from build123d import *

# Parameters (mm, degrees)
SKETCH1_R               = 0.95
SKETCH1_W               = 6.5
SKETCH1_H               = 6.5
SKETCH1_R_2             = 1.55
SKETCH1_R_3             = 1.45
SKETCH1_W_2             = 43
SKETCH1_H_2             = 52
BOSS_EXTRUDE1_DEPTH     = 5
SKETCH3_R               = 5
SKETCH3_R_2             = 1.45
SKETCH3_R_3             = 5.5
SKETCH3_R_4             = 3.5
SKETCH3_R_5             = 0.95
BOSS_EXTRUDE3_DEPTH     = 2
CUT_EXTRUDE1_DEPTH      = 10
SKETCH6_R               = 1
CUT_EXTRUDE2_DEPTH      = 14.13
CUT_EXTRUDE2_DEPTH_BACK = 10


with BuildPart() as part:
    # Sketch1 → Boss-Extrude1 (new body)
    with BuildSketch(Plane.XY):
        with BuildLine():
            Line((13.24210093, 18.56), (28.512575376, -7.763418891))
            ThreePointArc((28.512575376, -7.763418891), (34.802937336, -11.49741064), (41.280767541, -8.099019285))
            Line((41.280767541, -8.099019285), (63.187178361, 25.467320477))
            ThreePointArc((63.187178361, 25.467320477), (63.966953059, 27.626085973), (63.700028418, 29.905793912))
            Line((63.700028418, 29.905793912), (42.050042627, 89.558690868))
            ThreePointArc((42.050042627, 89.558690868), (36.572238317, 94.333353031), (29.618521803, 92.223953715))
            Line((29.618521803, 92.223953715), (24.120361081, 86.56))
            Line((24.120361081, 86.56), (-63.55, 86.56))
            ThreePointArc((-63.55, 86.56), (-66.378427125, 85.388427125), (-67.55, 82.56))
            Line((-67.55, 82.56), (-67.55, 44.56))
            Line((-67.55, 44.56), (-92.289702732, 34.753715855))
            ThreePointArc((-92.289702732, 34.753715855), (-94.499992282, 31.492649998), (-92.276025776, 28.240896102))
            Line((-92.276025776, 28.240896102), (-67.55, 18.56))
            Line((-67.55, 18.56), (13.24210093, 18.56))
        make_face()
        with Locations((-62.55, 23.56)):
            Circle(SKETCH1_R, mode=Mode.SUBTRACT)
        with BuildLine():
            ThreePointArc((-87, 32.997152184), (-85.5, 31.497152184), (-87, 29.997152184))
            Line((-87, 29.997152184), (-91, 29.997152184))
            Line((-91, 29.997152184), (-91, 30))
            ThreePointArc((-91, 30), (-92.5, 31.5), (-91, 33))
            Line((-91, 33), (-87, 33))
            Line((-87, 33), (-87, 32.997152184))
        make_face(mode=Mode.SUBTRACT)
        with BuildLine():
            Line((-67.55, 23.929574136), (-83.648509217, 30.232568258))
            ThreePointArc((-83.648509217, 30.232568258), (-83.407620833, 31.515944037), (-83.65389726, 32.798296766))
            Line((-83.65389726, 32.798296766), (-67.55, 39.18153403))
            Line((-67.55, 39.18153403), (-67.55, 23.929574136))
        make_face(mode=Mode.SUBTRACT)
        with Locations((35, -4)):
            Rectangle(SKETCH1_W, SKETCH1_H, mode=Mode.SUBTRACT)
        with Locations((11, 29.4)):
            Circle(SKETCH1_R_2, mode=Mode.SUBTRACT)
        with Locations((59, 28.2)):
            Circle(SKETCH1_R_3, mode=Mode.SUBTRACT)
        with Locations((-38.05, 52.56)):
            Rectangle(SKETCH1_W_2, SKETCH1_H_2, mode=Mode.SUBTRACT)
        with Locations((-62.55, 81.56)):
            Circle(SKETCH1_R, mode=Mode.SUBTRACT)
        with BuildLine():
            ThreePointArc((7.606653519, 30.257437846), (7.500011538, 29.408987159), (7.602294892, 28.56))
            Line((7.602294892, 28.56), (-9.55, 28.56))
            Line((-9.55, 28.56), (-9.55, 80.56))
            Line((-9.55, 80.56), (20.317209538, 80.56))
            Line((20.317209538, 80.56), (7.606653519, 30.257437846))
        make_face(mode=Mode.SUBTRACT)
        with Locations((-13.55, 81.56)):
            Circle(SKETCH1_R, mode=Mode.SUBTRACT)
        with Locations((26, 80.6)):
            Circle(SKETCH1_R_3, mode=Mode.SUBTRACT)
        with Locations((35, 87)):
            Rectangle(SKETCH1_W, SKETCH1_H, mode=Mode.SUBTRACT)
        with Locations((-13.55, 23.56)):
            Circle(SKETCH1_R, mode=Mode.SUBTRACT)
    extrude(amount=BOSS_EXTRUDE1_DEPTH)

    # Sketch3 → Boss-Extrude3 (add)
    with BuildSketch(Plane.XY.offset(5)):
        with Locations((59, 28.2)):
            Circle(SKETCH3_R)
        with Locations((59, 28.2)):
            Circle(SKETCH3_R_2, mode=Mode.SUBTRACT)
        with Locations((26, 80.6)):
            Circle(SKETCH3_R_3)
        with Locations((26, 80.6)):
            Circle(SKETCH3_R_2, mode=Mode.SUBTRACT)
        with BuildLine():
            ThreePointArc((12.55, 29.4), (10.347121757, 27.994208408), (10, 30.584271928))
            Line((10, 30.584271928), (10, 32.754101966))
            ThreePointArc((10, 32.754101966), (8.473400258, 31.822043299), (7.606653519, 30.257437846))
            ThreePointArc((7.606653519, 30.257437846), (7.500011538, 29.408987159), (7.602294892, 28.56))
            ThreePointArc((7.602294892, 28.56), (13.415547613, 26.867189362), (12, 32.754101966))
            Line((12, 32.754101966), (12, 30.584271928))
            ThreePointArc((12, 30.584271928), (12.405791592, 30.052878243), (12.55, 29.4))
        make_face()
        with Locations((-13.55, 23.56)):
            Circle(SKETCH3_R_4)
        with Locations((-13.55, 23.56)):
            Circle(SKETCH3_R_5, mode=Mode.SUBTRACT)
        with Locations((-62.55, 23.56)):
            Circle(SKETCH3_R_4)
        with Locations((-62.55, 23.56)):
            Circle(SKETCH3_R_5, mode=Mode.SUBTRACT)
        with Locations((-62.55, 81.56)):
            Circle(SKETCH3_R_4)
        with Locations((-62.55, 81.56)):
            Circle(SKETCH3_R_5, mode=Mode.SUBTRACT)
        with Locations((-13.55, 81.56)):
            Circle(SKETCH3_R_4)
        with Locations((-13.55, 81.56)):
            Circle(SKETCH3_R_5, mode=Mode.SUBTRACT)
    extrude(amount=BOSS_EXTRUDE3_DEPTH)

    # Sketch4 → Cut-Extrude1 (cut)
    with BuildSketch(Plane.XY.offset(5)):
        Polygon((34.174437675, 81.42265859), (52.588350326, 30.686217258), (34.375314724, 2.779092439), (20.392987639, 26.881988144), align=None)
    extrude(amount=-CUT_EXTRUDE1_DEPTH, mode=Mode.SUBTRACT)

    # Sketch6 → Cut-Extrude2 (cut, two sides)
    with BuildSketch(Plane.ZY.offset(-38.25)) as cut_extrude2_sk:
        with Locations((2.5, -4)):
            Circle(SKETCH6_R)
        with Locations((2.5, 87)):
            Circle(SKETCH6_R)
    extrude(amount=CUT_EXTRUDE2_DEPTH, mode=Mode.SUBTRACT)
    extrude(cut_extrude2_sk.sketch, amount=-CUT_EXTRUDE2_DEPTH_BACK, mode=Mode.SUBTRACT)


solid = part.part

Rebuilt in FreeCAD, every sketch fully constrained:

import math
import FreeCAD as App
import Part
import Sketcher
from FreeCAD import Vector
Q = App.Units.Quantity


def add_polygon(sketch, points):
    """Adds a closed chain of lines whose ends are joined by coincident constraints."""
    first, n = sketch.GeometryCount, len(points)
    for a, b in zip(points, points[1:] + points[:1]):
        sketch.addGeometry(Part.LineSegment(App.Vector(*a, 0), App.Vector(*b, 0)), False)
    for i in range(n):
        sketch.addConstraint(Sketcher.Constraint("Coincident", first + i, 2, first + (i + 1) % n, 1))

doc = App.newDocument("Part")
body = doc.addObject("PartDesign::Body", "Body")

sketch1 = doc.addObject("Sketcher::SketchObject", "Sketch")
body.addObject(sketch1)
sketch1.AttachmentSupport = (doc.XY_Plane, [""])
sketch1.MapMode = "FlatFace"
sketch1.addGeometry(Part.LineSegment(Vector(13.242101, 18.56, 0), Vector(28.512575, -7.763419, 0)), False)
sketch1.addGeometry(Part.ArcOfCircle(Part.Circle(Vector(35, -4, 0), Vector(0, 0, 1), 7.5), math.radians(-149.881558), math.radians(-33.129685)), False)
sketch1.addGeometry(Part.LineSegment(Vector(41.280768, -8.099019, 0), Vector(63.187178, 25.46732, 0)), False)
sketch1.addGeometry(Part.ArcOfCircle(Part.Circle(Vector(59, 28.2, 0), Vector(0, 0, 1), 5), math.radians(-33.129685), math.radians(19.947489)), False)
sketch1.addGeometry(Part.LineSegment(Vector(63.700028, 29.905794, 0), Vector(42.050043, 89.558691, 0)), False)
sketch1.addGeometry(Part.ArcOfCircle(Part.Circle(Vector(35, 87, 0), Vector(0, 0, 1), 7.5), math.radians(19.947489), math.radians(135.850962)), False)
sketch1.addGeometry(Part.LineSegment(Vector(29.618522, 92.223954, 0), Vector(24.120361, 86.56, 0)), False)
sketch1.addGeometry(Part.LineSegment(Vector(24.120361, 86.56, 0), Vector(-63.55, 86.56, 0)), False)
sketch1.addGeometry(Part.ArcOfCircle(Part.Circle(Vector(-63.55, 82.56, 0), Vector(0, 0, 1), 4), math.radians(90), math.radians(180)), False)
sketch1.addGeometry(Part.LineSegment(Vector(-67.55, 82.56, 0), Vector(-67.55, 44.56, 0)), False)
sketch1.addGeometry(Part.LineSegment(Vector(-67.55, 44.56, 0), Vector(-92.289703, 34.753716, 0)), False)
sketch1.addGeometry(Part.ArcOfCircle(Part.Circle(Vector(-91, 31.5, 0), Vector(0, 0, 1), 3.5), math.radians(111.622306), math.radians(248.618337)), False)
sketch1.addGeometry(Part.LineSegment(Vector(-92.276026, 28.240896, 0), Vector(-67.55, 18.56, 0)), False)
sketch1.addGeometry(Part.LineSegment(Vector(-67.55, 18.56, 0), Vector(13.242101, 18.56, 0)), False)
sketch1.addGeometry(Part.Circle(Vector(-62.55, 23.56, 0), Vector(0, 0, 1), 0.95), False)
sketch1.addGeometry(Part.LineSegment(Vector(-87, 33, 0), Vector(-87, 32.997152, 0)), False)
sketch1.addGeometry(Part.ArcOfCircle(Part.Circle(Vector(-87, 31.497152, 0), Vector(0, 0, 1), 1.5), math.radians(-90), math.radians(90)), False)
sketch1.addGeometry(Part.LineSegment(Vector(-87, 29.997152, 0), Vector(-91, 29.997152, 0)), False)
sketch1.addGeometry(Part.LineSegment(Vector(-91, 29.997152, 0), Vector(-91, 30, 0)), False)
sketch1.addGeometry(Part.ArcOfCircle(Part.Circle(Vector(-91, 31.5, 0), Vector(0, 0, 1), 1.5), math.radians(90), math.radians(270)), False)
sketch1.addGeometry(Part.LineSegment(Vector(-91, 33, 0), Vector(-87, 33, 0)), False)
sketch1.addGeometry(Part.LineSegment(Vector(-67.55, 39.181534, 0), Vector(-67.55, 23.929574, 0)), False)
sketch1.addGeometry(Part.LineSegment(Vector(-67.55, 23.929574, 0), Vector(-83.648509, 30.232568, 0)), False)
sketch1.addGeometry(Part.ArcOfCircle(Part.Circle(Vector(-86.907613, 31.508594, 0), Vector(0, 0, 1), 3.5), math.radians(-21.381663), math.radians(21.622306)), False)
sketch1.addGeometry(Part.LineSegment(Vector(-83.653897, 32.798297, 0), Vector(-67.55, 39.181534, 0)), False)
add_polygon(sketch1, [(38.25, -7.25), (31.75, -7.25), (31.75, -0.75), (38.25, -0.75)])
sketch1.addGeometry(Part.Circle(Vector(-13.55, 23.56, 0), Vector(0, 0, 1), 0.95), False)
sketch1.addGeometry(Part.Circle(Vector(11, 29.4, 0), Vector(0, 0, 1), 1.55), False)
sketch1.addGeometry(Part.Circle(Vector(59, 28.2, 0), Vector(0, 0, 1), 1.45), False)
add_polygon(sketch1, [(-16.55, 26.56), (-59.55, 26.56), (-59.55, 78.56), (-16.55, 78.56)])
sketch1.addGeometry(Part.Circle(Vector(-62.55, 81.56, 0), Vector(0, 0, 1), 0.95), False)
sketch1.addGeometry(Part.LineSegment(Vector(20.31721, 80.56, 0), Vector(7.606654, 30.257438, 0)), False)
sketch1.addGeometry(Part.ArcOfCircle(Part.Circle(Vector(11, 29.4, 0), Vector(0, 0, 1), 3.5), math.radians(165.819216), math.radians(193.88654)), False)
sketch1.addGeometry(Part.LineSegment(Vector(7.602295, 28.56, 0), Vector(-9.55, 28.56, 0)), False)
sketch1.addGeometry(Part.LineSegment(Vector(-9.55, 28.56, 0), Vector(-9.55, 80.56, 0)), False)
sketch1.addGeometry(Part.LineSegment(Vector(-9.55, 80.56, 0), Vector(20.31721, 80.56, 0)), False)
sketch1.addGeometry(Part.Circle(Vector(-13.55, 81.56, 0), Vector(0, 0, 1), 0.95), False)
sketch1.addGeometry(Part.Circle(Vector(26, 80.6, 0), Vector(0, 0, 1), 1.45), False)
add_polygon(sketch1, [(38.25, 83.75), (31.75, 83.75), (31.75, 90.25), (38.25, 90.25)])
sketch1.addConstraint([
    Sketcher.Constraint("Tangent", 0, 2, 1, 1),
    Sketcher.Constraint("Tangent", 1, 2, 2, 1),
    Sketcher.Constraint("Tangent", 2, 2, 3, 1),
    Sketcher.Constraint("Tangent", 3, 2, 4, 1),
    Sketcher.Constraint("Tangent", 4, 2, 5, 1),
    Sketcher.Constraint("Tangent", 5, 2, 6, 1),
    Sketcher.Constraint("Coincident", 6, 2, 7, 1),
    Sketcher.Constraint("Tangent", 7, 2, 8, 1),
    Sketcher.Constraint("Tangent", 8, 2, 9, 1),
    Sketcher.Constraint("Coincident", 9, 2, 10, 1),
    Sketcher.Constraint("Tangent", 10, 2, 11, 1),
    Sketcher.Constraint("Tangent", 11, 2, 12, 1),
    Sketcher.Constraint("Coincident", 12, 2, 13, 1),
    Sketcher.Constraint("Coincident", 13, 2, 0, 1),
    Sketcher.Constraint("Coincident", 15, 2, 16, 2),
    Sketcher.Constraint("Tangent", 16, 1, 17, 1),
    Sketcher.Constraint("Coincident", 17, 2, 18, 1),
    Sketcher.Constraint("Coincident", 18, 2, 19, 2),
    Sketcher.Constraint("Tangent", 19, 1, 20, 1),
    Sketcher.Constraint("Coincident", 20, 2, 15, 1),
    Sketcher.Constraint("Coincident", 21, 2, 22, 1),
    Sketcher.Constraint("Coincident", 22, 2, 23, 1),
    Sketcher.Constraint("Coincident", 23, 2, 24, 1),
    Sketcher.Constraint("Coincident", 24, 2, 21, 1),
    Sketcher.Constraint("Tangent", 37, 2, 38, 1),
    Sketcher.Constraint("Coincident", 38, 2, 39, 1),
    Sketcher.Constraint("Coincident", 39, 2, 40, 1),
    Sketcher.Constraint("Coincident", 40, 2, 41, 1),
    Sketcher.Constraint("Coincident", 41, 2, 37, 1),
    Sketcher.Constraint("Horizontal", 7),
    Sketcher.Constraint("Vertical", 9),
    Sketcher.Constraint("Horizontal", 13),
    Sketcher.Constraint("Vertical", 15),
    Sketcher.Constraint("Horizontal", 17),
    Sketcher.Constraint("Vertical", 18),
    Sketcher.Constraint("Horizontal", 20),
    Sketcher.Constraint("Vertical", 21),
    Sketcher.Constraint("Horizontal", 25),
    Sketcher.Constraint("Vertical", 26),
    Sketcher.Constraint("Horizontal", 27),
    Sketcher.Constraint("Vertical", 28),
    Sketcher.Constraint("Horizontal", 32),
    Sketcher.Constraint("Vertical", 33),
    Sketcher.Constraint("Horizontal", 34),
    Sketcher.Constraint("Vertical", 35),
    Sketcher.Constraint("Horizontal", 39),
    Sketcher.Constraint("Vertical", 40),
    Sketcher.Constraint("Horizontal", 41),
    Sketcher.Constraint("Horizontal", 44),
    Sketcher.Constraint("Vertical", 45),
    Sketcher.Constraint("Horizontal", 46),
    Sketcher.Constraint("Vertical", 47),
    Sketcher.Constraint("Coincident", 19, 3, 11, 3),
    Sketcher.Constraint("Coincident", 31, 3, 3, 3),
    Sketcher.Constraint("Coincident", 38, 3, 30, 3),
    Sketcher.Constraint("Equal", 1, 5),
    Sketcher.Constraint("Equal", 16, 19),
    Sketcher.Constraint("Equal", 11, 23),
    Sketcher.Constraint("Equal", 14, 29),
    Sketcher.Constraint("Equal", 29, 36),
    Sketcher.Constraint("Equal", 23, 38),
    Sketcher.Constraint("Equal", 36, 42),
    Sketcher.Constraint("Equal", 31, 43),
    Sketcher.Constraint("Parallel", 12, 22),
    Sketcher.Constraint("Parallel", 10, 24),
    Sketcher.Constraint("Horizontal", 14, 3, 29, 3),
    Sketcher.Constraint("Horizontal", 36, 3, 42, 3),
    Sketcher.Constraint("Vertical", 1, 3, 5, 3),
    Sketcher.Constraint("Vertical", 14, 3, 36, 3),
    Sketcher.Constraint("Vertical", 29, 3, 42, 3),
    Sketcher.Constraint("Vertical", 9, 2, 12, 2),
    Sketcher.Constraint("Vertical", 16, 3, 15, 2),
    Sketcher.Constraint("Vertical", 19, 3, 17, 2),
    Sketcher.Constraint("Vertical", 12, 2, 21, 2),
    Sketcher.Constraint("Vertical", 26, 2, 44, 2),
    Sketcher.Constraint("Vertical", 28, 2, 46, 2),
    Sketcher.Constraint("Equal", 46, 26),
    Sketcher.Constraint("Equal", 35, 40),
    Sketcher.Constraint("Equal", 28, 45),
    Sketcher.Constraint("Radius", 3, Q("5 mm")),
    Sketcher.Constraint("Radius", 8, Q("4 mm")),
    Sketcher.Constraint("Diameter", 14, Q("1.9 mm")),
    Sketcher.Constraint("Diameter", 30, Q("3.1 mm")),
    Sketcher.Constraint("Diameter", 31, Q("2.9 mm")),
    Sketcher.Constraint("Radius", 1, Q("7.5 mm")),
    Sketcher.Constraint("Radius", 11, Q("3.5 mm")),
    Sketcher.Constraint("Radius", 16, Q("1.5 mm")),
    Sketcher.Constraint("DistanceX", 17, 2, 17, 1, Q("4 mm")),
    Sketcher.Constraint("DistanceX", 32, 2, 32, 1, Q("43 mm")),
    Sketcher.Constraint("DistanceY", 9, 2, 9, 1, Q("38 mm")),
    Sketcher.Constraint("DistanceY", 33, 1, 33, 2, Q("52 mm")),
    Sketcher.Constraint("DistanceX", 25, 2, 25, 1, Q("6.5 mm")),
    Sketcher.Constraint("DistanceX", -1, 1, 1, 3, Q("35 mm")),
    Sketcher.Constraint("DistanceY", 1, 3, -1, 1, Q("4 mm")),
    Sketcher.Constraint("DistanceX", -1, 1, 3, 3, Q("59 mm")),
    Sketcher.Constraint("DistanceY", -1, 1, 5, 3, Q("87 mm")),
    Sketcher.Constraint("DistanceX", 11, 3, -1, 1, Q("91 mm")),
    Sketcher.Constraint("DistanceX", -1, 1, 30, 3, Q("11 mm")),
    Sketcher.Constraint("DistanceX", -1, 1, 43, 3, Q("26 mm")),
    Sketcher.Constraint("DistanceY", -1, 1, 18, 2, Q("30 mm")),
    Sketcher.Constraint("DistanceX", 8, 3, 14, 3, Q("1 mm")),
    Sketcher.Constraint("DistanceY", 14, 3, 8, 3, Q("59 mm")),
    Sketcher.Constraint("DistanceX", 14, 3, 29, 3, Q("49 mm")),
    Sketcher.Constraint("DistanceY", 36, 3, 8, 3, Q("1 mm")),
    Sketcher.Constraint("DistanceY", 12, 2, 14, 3, Q("5 mm")),
    Sketcher.Constraint("DistanceX", 14, 3, 32, 2, Q("3 mm")),
    Sketcher.Constraint("DistanceY", 14, 3, 32, 2, Q("3 mm")),
    Sketcher.Constraint("DistanceY", 13, 2, 38, 2, Q("10 mm")),
    Sketcher.Constraint("DistanceX", 29, 3, 39, 2, Q("4 mm")),
    Sketcher.Constraint("DistanceY", -1, 1, 3, 3, Q("28.2 mm")),
    Sketcher.Constraint("DistanceY", -1, 1, 30, 3, Q("29.4 mm")),
    Sketcher.Constraint("DistanceY", -1, 1, 43, 3, Q("80.6 mm")),
    Sketcher.Constraint("DistanceX", 8, 3, -1, 1, Q("63.55 mm")),
    Sketcher.Constraint("DistanceY", -1, 1, 8, 3, Q("82.56 mm")),
    Sketcher.Constraint("DistanceX", -1, 1, 25, 2, Q("31.75 mm")),
    Sketcher.Constraint("DistanceY", 25, 2, -1, 1, Q("7.25 mm")),
    Sketcher.Constraint("DistanceY", -1, 1, 44, 2, Q("83.75 mm")),
    Sketcher.Constraint("DistanceX", 13, 1, 13, 2, Q("80.792101 mm")),
    Sketcher.Constraint("DistanceX", 7, 2, 7, 1, Q("87.670361 mm")),
    Sketcher.Constraint("DistanceX", 41, 1, 41, 2, Q("29.86721 mm")),
    Sketcher.Constraint("DistanceY", 21, 2, 21, 1, Q("15.25196 mm")),
    Sketcher.Constraint("DistanceY", 15, 2, 15, 1, Q("0.002848 mm")),
    Sketcher.Constraint("DistanceX", 22, 2, -1, 1, Q("83.648509 mm")),
    Sketcher.Constraint("DistanceY", -1, 1, 22, 2, Q("30.232568 mm")),
    Sketcher.Constraint("DistanceY", 16, 3, 23, 3, Q("0.011442 mm")),
])
pad1 = doc.addObject("PartDesign::Pad", "Pad")
body.addObject(pad1)
pad1.Profile = sketch1
pad1.Length = 5

sketch2 = doc.addObject("Sketcher::SketchObject", "Sketch001")
body.addObject(sketch2)
sketch2.AttachmentSupport = (doc.XY_Plane, [""])
sketch2.MapMode = "FlatFace"
sketch2.AttachmentOffset = App.Placement(Vector(0, 0, 5), App.Rotation())
sketch2.addGeometry([
    Part.Circle(Vector(59, 28.2, 0), Vector(0, 0, 1), 5),
    Part.Circle(Vector(59, 28.2, 0), Vector(0, 0, 1), 1.45),
    Part.Circle(Vector(26, 80.6, 0), Vector(0, 0, 1), 5.5),
    Part.Circle(Vector(26, 80.6, 0), Vector(0, 0, 1), 1.45),
    Part.ArcOfCircle(Part.Circle(Vector(11, 29.4, 0), Vector(0, 0, 1), 1.55), math.radians(130.17777), math.radians(360)),
    Part.LineSegment(Vector(10, 30.584272, 0), Vector(10, 32.754102, 0)),
    Part.ArcOfCircle(Part.Circle(Vector(11, 29.4, 0), Vector(0, 0, 1), 3.5), math.radians(106.60155), math.radians(165.819216)),
    Part.ArcOfCircle(Part.Circle(Vector(11, 29.4, 0), Vector(0, 0, 1), 3.5), math.radians(165.819216), math.radians(193.88654)),
    Part.ArcOfCircle(Part.Circle(Vector(11, 29.4, 0), Vector(0, 0, 1), 3.5), math.radians(-166.11346), math.radians(73.39845)),
    Part.LineSegment(Vector(12, 32.754102, 0), Vector(12, 30.584272, 0)),
    Part.ArcOfCircle(Part.Circle(Vector(11, 29.4, 0), Vector(0, 0, 1), 1.55), math.radians(0), math.radians(49.82223)),
    Part.Circle(Vector(-13.55, 23.56, 0), Vector(0, 0, 1), 3.5),
    Part.Circle(Vector(-13.55, 23.56, 0), Vector(0, 0, 1), 0.95),
    Part.Circle(Vector(-62.55, 23.56, 0), Vector(0, 0, 1), 3.5),
    Part.Circle(Vector(-62.55, 23.56, 0), Vector(0, 0, 1), 0.95),
    Part.Circle(Vector(-62.55, 81.56, 0), Vector(0, 0, 1), 3.5),
    Part.Circle(Vector(-62.55, 81.56, 0), Vector(0, 0, 1), 0.95),
    Part.Circle(Vector(-13.55, 81.56, 0), Vector(0, 0, 1), 3.5),
    Part.Circle(Vector(-13.55, 81.56, 0), Vector(0, 0, 1), 0.95),
], False)
sketch2.addConstraint([
    Sketcher.Constraint("Coincident", 4, 1, 5, 1),
    Sketcher.Constraint("Coincident", 5, 2, 6, 1),
    Sketcher.Constraint("Tangent", 6, 2, 7, 1),
    Sketcher.Constraint("Tangent", 7, 2, 8, 1),
    Sketcher.Constraint("Coincident", 8, 2, 9, 1),
    Sketcher.Constraint("Coincident", 9, 2, 10, 2),
    Sketcher.Constraint("Tangent", 10, 1, 4, 2),
    Sketcher.Constraint("Vertical", 5),
    Sketcher.Constraint("Vertical", 9),
    Sketcher.Constraint("Coincident", 1, 3, 0, 3),
    Sketcher.Constraint("Coincident", 3, 3, 2, 3),
    Sketcher.Constraint("Coincident", 6, 3, 4, 3),
    Sketcher.Constraint("Coincident", 8, 3, 4, 3),
    Sketcher.Constraint("Coincident", 12, 3, 11, 3),
    Sketcher.Constraint("Coincident", 14, 3, 13, 3),
    Sketcher.Constraint("Coincident", 16, 3, 15, 3),
    Sketcher.Constraint("Coincident", 18, 3, 17, 3),
    Sketcher.Constraint("Equal", 1, 3),
    Sketcher.Constraint("Equal", 4, 10),
    Sketcher.Constraint("Equal", 8, 11),
    Sketcher.Constraint("Equal", 11, 13),
    Sketcher.Constraint("Equal", 12, 14),
    Sketcher.Constraint("Equal", 13, 15),
    Sketcher.Constraint("Equal", 14, 16),
    Sketcher.Constraint("Equal", 15, 17),
    Sketcher.Constraint("Equal", 16, 18),
    Sketcher.Constraint("Horizontal", 12, 3, 13, 3),
    Sketcher.Constraint("Horizontal", 16, 3, 17, 3),
    Sketcher.Constraint("Horizontal", 5, 2, 8, 2),
    Sketcher.Constraint("Horizontal", 8, 3, 10, 1),
    Sketcher.Constraint("Vertical", 14, 3, 15, 3),
    Sketcher.Constraint("Vertical", 12, 3, 17, 3),
    Sketcher.Constraint("Diameter", 0, Q("10 mm")),
    Sketcher.Constraint("Diameter", 2, Q("11 mm")),
    Sketcher.Constraint("Diameter", 11, Q("7 mm")),
    Sketcher.Constraint("Diameter", 1, Q("2.9 mm")),
    Sketcher.Constraint("Diameter", 12, Q("1.9 mm")),
    Sketcher.Constraint("Radius", 4, Q("1.55 mm")),
    Sketcher.Constraint("DistanceX", -1, 1, 0, 3, Q("59 mm")),
    Sketcher.Constraint("DistanceX", -1, 1, 2, 3, Q("26 mm")),
    Sketcher.Constraint("DistanceX", -1, 1, 4, 3, Q("11 mm")),
    Sketcher.Constraint("DistanceX", -1, 1, 4, 1, Q("10 mm")),
    Sketcher.Constraint("DistanceX", 13, 3, 11, 3, Q("49 mm")),
    Sketcher.Constraint("DistanceY", 13, 3, 15, 3, Q("58 mm")),
    Sketcher.Constraint("DistanceY", -1, 1, 0, 3, Q("28.2 mm")),
    Sketcher.Constraint("DistanceY", -1, 1, 2, 3, Q("80.6 mm")),
    Sketcher.Constraint("DistanceY", -1, 1, 4, 3, Q("29.4 mm")),
    Sketcher.Constraint("DistanceX", 11, 3, -1, 1, Q("13.55 mm")),
    Sketcher.Constraint("DistanceY", -1, 1, 11, 3, Q("23.56 mm")),
    Sketcher.Constraint("DistanceY", -1, 1, 7, 2, Q("28.56 mm")),
    Sketcher.Constraint("DistanceX", 7, 2, 6, 2, Q("0.004359 mm")),
])
pad2 = doc.addObject("PartDesign::Pad", "Pad001")
body.addObject(pad2)
pad2.Profile = sketch2
pad2.Length = 2

sketch3 = doc.addObject("Sketcher::SketchObject", "Sketch002")
body.addObject(sketch3)
sketch3.AttachmentSupport = (doc.XY_Plane, [""])
sketch3.MapMode = "FlatFace"
sketch3.AttachmentOffset = App.Placement(Vector(0, 0, 5), App.Rotation())
add_polygon(sketch3, [(52.58835, 30.686217), (34.174438, 81.422659), (20.392988, 26.881988), (34.375315, 2.779092)])
sketch3.addConstraint([
    Sketcher.Constraint("Distance", 3, Q("33.3245 mm")),
    Sketcher.Constraint("Distance", 0, Q("53.974611 mm")),
    Sketcher.Constraint("DistanceY", -1, 1, 0, 2, Q("81.422659 mm")),
    Sketcher.Constraint("DistanceY", -1, 1, 1, 2, Q("26.881988 mm")),
    Sketcher.Constraint("DistanceX", -1, 1, 3, 2, Q("52.58835 mm")),
    Sketcher.Constraint("DistanceX", 1, 2, 0, 2, Q("13.78145 mm")),
    Sketcher.Constraint("DistanceY", 1, 2, 3, 2, Q("3.804229 mm")),
    Sketcher.Constraint("Distance", 2, Q("27.864943 mm")),
])
pocket1 = doc.addObject("PartDesign::Pocket", "Pocket")
body.addObject(pocket1)
pocket1.Profile = sketch3
pocket1.Length = 10

sketch4 = doc.addObject("Sketcher::SketchObject", "Sketch003")
body.addObject(sketch4)
sketch4.AttachmentSupport = (doc.YZ_Plane, [""])
sketch4.MapMode = "FlatFace"
sketch4.AttachmentOffset = App.Placement(Vector(0, 0, 38.25), App.Rotation())
sketch4.addGeometry([
    Part.Circle(Vector(-4, 2.5, 0), Vector(0, 0, 1), 1),
    Part.Circle(Vector(87, 2.5, 0), Vector(0, 0, 1), 1),
], False)
sketch4.addConstraint([
    Sketcher.Constraint("Equal", 0, 1),
    Sketcher.Constraint("Horizontal", 0, 3, 1, 3),
    Sketcher.Constraint("Diameter", 0, Q("2 mm")),
    Sketcher.Constraint("DistanceX", 0, 3, -1, 1, Q("4 mm")),
    Sketcher.Constraint("DistanceX", -1, 1, 1, 3, Q("87 mm")),
    Sketcher.Constraint("DistanceY", -1, 1, 0, 3, Q("2.5 mm")),
])
pocket2 = doc.addObject("PartDesign::Pocket", "Pocket001")
body.addObject(pocket2)
pocket2.Profile = sketch4
pocket2.Type = "TwoLengths"
pocket2.Length = 14.13
pocket2.Length2 = 10

doc.recompute()
